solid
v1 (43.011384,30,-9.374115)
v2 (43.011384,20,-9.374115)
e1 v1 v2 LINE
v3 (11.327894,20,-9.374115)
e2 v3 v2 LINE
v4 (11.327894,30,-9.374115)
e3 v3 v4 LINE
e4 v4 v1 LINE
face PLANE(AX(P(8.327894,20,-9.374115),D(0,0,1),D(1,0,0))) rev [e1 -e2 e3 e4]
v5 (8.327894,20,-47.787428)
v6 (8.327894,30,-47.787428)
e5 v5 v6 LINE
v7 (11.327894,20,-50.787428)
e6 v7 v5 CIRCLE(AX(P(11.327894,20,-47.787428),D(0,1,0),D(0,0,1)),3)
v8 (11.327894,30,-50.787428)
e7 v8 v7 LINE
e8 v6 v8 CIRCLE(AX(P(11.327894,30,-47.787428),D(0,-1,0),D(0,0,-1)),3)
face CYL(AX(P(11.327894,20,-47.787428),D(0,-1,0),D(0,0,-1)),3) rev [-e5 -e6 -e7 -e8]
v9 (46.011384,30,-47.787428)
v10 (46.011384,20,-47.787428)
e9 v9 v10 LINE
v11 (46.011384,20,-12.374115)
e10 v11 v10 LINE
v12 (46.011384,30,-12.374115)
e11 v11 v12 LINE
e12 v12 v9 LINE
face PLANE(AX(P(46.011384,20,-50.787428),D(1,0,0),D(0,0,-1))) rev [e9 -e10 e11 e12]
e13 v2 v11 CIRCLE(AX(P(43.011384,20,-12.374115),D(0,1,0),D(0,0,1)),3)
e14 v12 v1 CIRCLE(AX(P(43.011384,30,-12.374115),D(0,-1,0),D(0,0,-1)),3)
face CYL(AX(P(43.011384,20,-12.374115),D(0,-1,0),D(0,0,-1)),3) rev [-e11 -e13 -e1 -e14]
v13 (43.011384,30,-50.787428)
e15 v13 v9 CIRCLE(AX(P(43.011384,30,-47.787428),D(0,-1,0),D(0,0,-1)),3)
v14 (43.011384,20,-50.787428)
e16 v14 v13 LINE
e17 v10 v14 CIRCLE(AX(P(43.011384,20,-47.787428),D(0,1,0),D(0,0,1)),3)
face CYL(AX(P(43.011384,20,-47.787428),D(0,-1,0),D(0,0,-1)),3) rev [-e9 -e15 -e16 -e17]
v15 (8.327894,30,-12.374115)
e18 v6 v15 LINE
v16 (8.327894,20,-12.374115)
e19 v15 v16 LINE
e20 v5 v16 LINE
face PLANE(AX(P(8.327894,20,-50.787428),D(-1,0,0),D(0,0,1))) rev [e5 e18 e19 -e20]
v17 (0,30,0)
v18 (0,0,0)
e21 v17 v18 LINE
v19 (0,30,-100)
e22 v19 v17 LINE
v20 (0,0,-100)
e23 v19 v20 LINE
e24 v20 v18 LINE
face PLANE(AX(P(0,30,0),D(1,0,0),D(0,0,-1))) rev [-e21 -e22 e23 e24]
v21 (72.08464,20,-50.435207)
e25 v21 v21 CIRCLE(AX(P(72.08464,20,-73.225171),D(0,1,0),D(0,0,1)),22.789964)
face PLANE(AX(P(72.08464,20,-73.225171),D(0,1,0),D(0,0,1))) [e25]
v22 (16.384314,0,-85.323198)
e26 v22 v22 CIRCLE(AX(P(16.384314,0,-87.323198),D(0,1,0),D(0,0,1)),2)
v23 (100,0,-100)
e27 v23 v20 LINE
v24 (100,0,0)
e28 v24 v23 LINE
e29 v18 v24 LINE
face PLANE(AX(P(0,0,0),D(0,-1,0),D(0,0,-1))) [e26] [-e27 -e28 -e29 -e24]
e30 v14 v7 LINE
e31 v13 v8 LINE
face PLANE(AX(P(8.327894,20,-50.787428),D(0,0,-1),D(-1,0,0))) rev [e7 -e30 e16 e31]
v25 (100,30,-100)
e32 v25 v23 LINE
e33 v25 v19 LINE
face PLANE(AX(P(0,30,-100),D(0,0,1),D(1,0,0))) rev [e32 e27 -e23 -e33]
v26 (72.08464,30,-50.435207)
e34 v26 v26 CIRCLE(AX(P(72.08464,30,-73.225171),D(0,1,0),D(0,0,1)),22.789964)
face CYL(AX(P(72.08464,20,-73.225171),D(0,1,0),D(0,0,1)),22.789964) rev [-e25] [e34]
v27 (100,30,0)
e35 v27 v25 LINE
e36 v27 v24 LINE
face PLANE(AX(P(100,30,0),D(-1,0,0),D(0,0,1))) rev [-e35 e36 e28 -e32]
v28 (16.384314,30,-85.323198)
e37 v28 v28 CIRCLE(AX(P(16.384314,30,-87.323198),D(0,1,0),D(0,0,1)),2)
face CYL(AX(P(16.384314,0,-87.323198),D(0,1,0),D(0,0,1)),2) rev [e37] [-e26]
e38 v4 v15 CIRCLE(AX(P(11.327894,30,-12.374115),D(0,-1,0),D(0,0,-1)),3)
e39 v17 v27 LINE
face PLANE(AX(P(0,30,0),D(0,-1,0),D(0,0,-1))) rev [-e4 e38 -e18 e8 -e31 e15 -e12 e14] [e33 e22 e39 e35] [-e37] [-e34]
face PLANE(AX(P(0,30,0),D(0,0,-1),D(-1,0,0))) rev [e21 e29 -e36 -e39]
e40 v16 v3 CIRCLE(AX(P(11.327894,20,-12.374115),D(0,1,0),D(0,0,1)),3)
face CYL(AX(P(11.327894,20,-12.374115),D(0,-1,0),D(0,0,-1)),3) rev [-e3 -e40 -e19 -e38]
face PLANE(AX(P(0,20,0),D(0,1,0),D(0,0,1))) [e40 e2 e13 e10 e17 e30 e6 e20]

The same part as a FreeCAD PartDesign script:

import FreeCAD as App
import Part
import Sketcher
Q = App.Units.Quantity


def edges_at(feature, points):
    """Names of the edges that pass closest to the given points."""
    edges = feature.Shape.Edges
    near = lambda p: min(range(len(edges)), key=lambda i: edges[i].distToShape(Part.Vertex(*p))[0])
    return sorted({f"Edge{near(p) + 1}" for p in points})

doc = App.newDocument("Part")
params = doc.addObject("Spreadsheet::Sheet", "Params")
for row, (alias, value) in enumerate([
    ("sketch1_width", "100 mm"),
    ("pad1_length", "30 mm"),
    ("sketch2_diameter", "4 mm"),
    ("pocket2_length", "10 mm"),
    ("fillet_radius", "3 mm"),
], start=1):
    params.set(f"A{row}", alias)
    params.set(f"B{row}", "=" + value)
    params.setAlias(f"B{row}", alias)

body = doc.addObject("PartDesign::Body", "Body")

# Sketch on XZ plane
sketch1 = body.newObject("Sketcher::SketchObject", "Sketch")
sketch1.AttachmentSupport = (doc.getObject("XZ_Plane"), [""])
sketch1.MapMode = "FlatFace"
sketch1.addGeometry([
    Part.LineSegment(App.Vector(0, -100, 0), App.Vector(0, 0, 0)),
    Part.LineSegment(App.Vector(0, 0, 0), App.Vector(100, 0, 0)),
    Part.LineSegment(App.Vector(100, 0, 0), App.Vector(100, -100, 0)),
    Part.LineSegment(App.Vector(100, -100, 0), App.Vector(0, -100, 0)),
], False)
sketch1.addConstraint([
    Sketcher.Constraint("Coincident", 0, 2, 1, 1),
    Sketcher.Constraint("Coincident", 1, 2, 2, 1),
    Sketcher.Constraint("Coincident", 2, 2, 3, 1),
    Sketcher.Constraint("Coincident", 3, 2, 0, 1),
    Sketcher.Constraint("Vertical", 0),
    Sketcher.Constraint("Horizontal", 1),
    Sketcher.Constraint("Vertical", 2),
    Sketcher.Constraint("Horizontal", 3),
    Sketcher.Constraint("Coincident", 0, 2, -1, 1),
    Sketcher.Constraint("Equal", 3, 0),
    Sketcher.Constraint("DistanceX", 1, 1, 1, 2, Q("100 mm")),
])
sketch1.setExpression("Constraints[10]", "Params.sketch1_width")
pad1 = body.newObject("PartDesign::Pad", "Pad")
pad1.Profile = sketch1
pad1.setExpression("Length", "Params.pad1_length")
pad1.Reversed = True

# Sketch on XZ plane
sketch2 = body.newObject("Sketcher::SketchObject", "Sketch001")
sketch2.AttachmentSupport = (doc.getObject("XZ_Plane"), [""])
sketch2.MapMode = "FlatFace"
sketch2.AttachmentOffset = App.Placement(App.Vector(0, 0, -30), App.Rotation())
sketch2.addGeometry(Part.Circle(App.Vector(16.384314, -87.323198, 0), App.Vector(0, 0, 1), 2), False)
sketch2.addConstraint([
    Sketcher.Constraint("Diameter", 0, Q("4 mm")),
    Sketcher.Constraint("DistanceY", 0, 3, -1, 1, Q("87.323198 mm")),
    Sketcher.Constraint("DistanceX", -1, 1, 0, 3, Q("16.384314 mm")),
])
sketch2.setExpression("Constraints[0]", "Params.sketch2_diameter")
pocket1 = body.newObject("PartDesign::Pocket", "Pocket")
pocket1.Profile = sketch2
pocket1.Type = "ThroughAll"
pocket1.Reversed = True

# Sketch on XZ plane
sketch3 = body.newObject("Sketcher::SketchObject", "Sketch002")
sketch3.AttachmentSupport = (doc.getObject("XZ_Plane"), [""])
sketch3.MapMode = "FlatFace"
sketch3.AttachmentOffset = App.Placement(App.Vector(0, 0, -30), App.Rotation())
sketch3.addGeometry([
    Part.Circle(App.Vector(72.08464, -73.225171, 0), App.Vector(0, 0, 1), 22.789964),  # 0
    Part.LineSegment(App.Vector(8.327894, -50.787428, 0), App.Vector(8.327894, -9.374115, 0)),  # 1
    Part.LineSegment(App.Vector(8.327894, -9.374115, 0), App.Vector(46.011384, -9.374115, 0)),  # 2
    Part.LineSegment(App.Vector(46.011384, -9.374115, 0), App.Vector(46.011384, -50.787428, 0)),  # 3
    Part.LineSegment(App.Vector(46.011384, -50.787428, 0), App.Vector(8.327894, -50.787428, 0)),  # 4
], False)
sketch3.addConstraint([
    Sketcher.Constraint("Coincident", 1, 2, 2, 1),
    Sketcher.Constraint("Coincident", 2, 2, 3, 1),
    Sketcher.Constraint("Coincident", 3, 2, 4, 1),
    Sketcher.Constraint("Coincident", 4, 2, 1, 1),
    Sketcher.Constraint("Vertical", 1),
    Sketcher.Constraint("Horizontal", 2),
    Sketcher.Constraint("Vertical", 3),
    Sketcher.Constraint("Horizontal", 4),
    Sketcher.Constraint("Diameter", 0, Q("45.579928 mm")),
    Sketcher.Constraint("DistanceX", 2, 1, 2, 2, Q("37.683489 mm")),
    Sketcher.Constraint("DistanceY", 1, 1, 1, 2, Q("41.413313 mm")),
    Sketcher.Constraint("DistanceX", -1, 1, 0, 3, Q("72.08464 mm")),
    Sketcher.Constraint("DistanceY", 0, 3, -1, 1, Q("73.225171 mm")),
    Sketcher.Constraint("DistanceX", -1, 1, 1, 2, Q("8.327894 mm")),
    Sketcher.Constraint("DistanceY", 1, 2, -1, 1, Q("9.374115 mm")),
])
pocket2 = body.newObject("PartDesign::Pocket", "Pocket001")
pocket2.Profile = sketch3
pocket2.setExpression("Length", "Params.pocket2_length")
pocket2.Reversed = True
doc.recompute()

fillet = body.newObject("PartDesign::Fillet", "Fillet")
fillet.Base = (pocket2, edges_at(pocket2, [
    (8.328, 25, -9.374),
    (8.328, 25, -50.787),
    (46.011, 25, -50.787),
    (46.011, 25, -9.374),
]))
fillet.setExpression("Radius", "Params.fillet_radius")

doc.recompute()
